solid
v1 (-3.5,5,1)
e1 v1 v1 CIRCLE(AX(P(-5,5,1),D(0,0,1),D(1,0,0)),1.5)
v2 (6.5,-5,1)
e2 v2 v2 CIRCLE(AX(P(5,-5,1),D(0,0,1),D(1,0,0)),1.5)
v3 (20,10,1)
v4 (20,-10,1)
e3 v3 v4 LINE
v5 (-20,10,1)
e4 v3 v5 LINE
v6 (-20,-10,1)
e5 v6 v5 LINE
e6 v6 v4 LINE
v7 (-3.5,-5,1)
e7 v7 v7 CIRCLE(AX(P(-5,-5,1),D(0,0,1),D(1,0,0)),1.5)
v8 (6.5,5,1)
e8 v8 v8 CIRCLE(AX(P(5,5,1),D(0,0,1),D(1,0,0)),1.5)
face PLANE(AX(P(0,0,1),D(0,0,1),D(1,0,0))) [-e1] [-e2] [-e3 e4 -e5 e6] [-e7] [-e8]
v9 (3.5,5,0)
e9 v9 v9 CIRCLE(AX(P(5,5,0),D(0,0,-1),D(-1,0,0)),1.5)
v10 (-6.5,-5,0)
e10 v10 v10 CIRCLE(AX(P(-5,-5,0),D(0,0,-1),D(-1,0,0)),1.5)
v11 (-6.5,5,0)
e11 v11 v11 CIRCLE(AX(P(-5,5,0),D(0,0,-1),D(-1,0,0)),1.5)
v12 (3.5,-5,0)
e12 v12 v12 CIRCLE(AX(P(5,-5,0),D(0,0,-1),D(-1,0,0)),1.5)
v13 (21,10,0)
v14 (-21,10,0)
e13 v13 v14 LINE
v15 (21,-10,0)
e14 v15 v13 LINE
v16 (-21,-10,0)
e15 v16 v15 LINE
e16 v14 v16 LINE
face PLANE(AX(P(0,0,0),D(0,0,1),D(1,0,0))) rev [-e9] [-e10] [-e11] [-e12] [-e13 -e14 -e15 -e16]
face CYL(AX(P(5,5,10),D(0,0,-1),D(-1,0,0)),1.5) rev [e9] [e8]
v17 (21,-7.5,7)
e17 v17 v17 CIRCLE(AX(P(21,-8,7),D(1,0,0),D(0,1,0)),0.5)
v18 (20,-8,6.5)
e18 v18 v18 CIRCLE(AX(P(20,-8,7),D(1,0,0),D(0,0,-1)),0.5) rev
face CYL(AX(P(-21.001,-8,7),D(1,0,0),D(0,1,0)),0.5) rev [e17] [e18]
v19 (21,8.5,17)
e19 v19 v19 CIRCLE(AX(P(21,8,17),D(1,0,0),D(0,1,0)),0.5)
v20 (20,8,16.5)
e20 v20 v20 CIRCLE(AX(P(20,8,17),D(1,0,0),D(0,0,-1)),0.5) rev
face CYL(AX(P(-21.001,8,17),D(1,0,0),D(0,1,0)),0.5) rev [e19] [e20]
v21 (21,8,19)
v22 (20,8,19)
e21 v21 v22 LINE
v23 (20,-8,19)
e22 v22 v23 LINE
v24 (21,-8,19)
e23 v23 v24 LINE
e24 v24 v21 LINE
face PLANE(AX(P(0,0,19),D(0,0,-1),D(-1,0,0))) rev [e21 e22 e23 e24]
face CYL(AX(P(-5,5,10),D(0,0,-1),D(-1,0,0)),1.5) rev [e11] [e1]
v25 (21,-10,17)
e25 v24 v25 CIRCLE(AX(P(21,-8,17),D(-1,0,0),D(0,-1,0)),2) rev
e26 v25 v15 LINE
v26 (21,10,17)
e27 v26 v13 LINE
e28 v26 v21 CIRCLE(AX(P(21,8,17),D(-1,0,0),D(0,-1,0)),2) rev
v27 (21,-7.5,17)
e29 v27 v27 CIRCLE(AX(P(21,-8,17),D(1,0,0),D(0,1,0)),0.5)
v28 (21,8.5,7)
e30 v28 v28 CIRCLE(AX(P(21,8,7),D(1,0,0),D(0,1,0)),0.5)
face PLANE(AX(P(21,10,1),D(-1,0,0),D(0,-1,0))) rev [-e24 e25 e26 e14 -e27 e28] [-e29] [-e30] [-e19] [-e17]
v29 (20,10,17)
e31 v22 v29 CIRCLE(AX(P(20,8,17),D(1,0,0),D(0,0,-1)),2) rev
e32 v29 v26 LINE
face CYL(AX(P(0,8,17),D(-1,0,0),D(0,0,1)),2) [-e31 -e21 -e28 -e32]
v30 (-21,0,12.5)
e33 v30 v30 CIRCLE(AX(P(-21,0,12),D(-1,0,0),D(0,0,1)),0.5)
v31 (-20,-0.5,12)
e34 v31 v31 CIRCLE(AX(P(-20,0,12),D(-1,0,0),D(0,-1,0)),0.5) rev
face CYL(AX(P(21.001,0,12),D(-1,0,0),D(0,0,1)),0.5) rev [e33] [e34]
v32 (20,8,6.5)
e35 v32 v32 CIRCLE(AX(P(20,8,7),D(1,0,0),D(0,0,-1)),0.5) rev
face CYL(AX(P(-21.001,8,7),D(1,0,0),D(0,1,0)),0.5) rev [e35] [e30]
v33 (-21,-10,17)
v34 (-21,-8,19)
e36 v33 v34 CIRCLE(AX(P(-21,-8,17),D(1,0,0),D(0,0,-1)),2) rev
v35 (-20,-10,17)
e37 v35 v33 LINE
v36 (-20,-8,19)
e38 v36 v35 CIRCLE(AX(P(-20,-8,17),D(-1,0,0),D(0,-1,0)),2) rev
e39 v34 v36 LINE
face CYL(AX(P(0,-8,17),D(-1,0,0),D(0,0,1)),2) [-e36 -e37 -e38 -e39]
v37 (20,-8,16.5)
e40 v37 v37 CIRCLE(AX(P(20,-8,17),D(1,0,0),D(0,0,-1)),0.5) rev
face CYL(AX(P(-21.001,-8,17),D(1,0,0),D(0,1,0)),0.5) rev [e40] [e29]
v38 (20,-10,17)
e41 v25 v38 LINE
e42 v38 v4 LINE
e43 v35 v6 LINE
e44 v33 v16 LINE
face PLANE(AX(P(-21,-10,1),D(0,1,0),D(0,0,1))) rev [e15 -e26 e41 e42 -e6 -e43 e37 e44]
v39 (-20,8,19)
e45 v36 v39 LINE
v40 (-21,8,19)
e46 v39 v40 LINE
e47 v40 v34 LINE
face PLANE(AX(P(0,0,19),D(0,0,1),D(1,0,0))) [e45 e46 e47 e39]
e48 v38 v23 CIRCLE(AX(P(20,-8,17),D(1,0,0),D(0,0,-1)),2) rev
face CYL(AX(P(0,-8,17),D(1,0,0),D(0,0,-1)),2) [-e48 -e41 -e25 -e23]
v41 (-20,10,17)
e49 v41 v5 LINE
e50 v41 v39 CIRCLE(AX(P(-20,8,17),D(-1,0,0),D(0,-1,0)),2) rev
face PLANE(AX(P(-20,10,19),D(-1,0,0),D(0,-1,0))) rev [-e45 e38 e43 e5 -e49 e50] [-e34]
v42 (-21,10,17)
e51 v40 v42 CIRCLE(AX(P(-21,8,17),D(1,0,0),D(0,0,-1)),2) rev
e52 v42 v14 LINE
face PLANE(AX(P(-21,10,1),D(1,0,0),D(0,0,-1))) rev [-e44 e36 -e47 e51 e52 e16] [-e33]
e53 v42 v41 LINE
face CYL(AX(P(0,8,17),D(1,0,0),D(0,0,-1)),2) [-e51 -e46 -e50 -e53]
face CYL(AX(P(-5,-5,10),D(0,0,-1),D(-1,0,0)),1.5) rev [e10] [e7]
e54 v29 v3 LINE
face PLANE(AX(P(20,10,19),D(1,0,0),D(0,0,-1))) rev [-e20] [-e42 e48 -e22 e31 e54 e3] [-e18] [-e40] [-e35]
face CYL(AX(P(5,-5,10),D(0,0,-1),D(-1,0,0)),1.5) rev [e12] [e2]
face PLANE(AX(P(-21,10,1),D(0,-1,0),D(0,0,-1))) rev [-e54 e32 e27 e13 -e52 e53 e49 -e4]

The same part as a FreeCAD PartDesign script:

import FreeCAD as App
import Part
import Sketcher

V = App.Vector
Q = App.Units.Quantity


def edges_at(feature, points):
    """Names of the edges that pass closest to the given points."""
    edges = feature.Shape.Edges
    near = lambda p: min(range(len(edges)), key=lambda i: edges[i].distToShape(Part.Vertex(*p))[0])
    return sorted({f"Edge{near(p) + 1}" for p in points})

doc = App.newDocument("Part")
body = doc.addObject("PartDesign::Body", "Body")

sketch1 = doc.addObject("Sketcher::SketchObject", "Sketch")
body.addObject(sketch1)
sketch1.AttachmentSupport = (doc.XY_Plane, [""])
sketch1.MapMode = "FlatFace"
sketch1.addGeometry(Part.LineSegment(V(-21, 10, 0), V(-21, -10, 0)), False)
sketch1.addGeometry(Part.LineSegment(V(-21, -10, 0), V(21, -10, 0)), False)
sketch1.addGeometry(Part.LineSegment(V(21, -10, 0), V(21, 10, 0)), False)
sketch1.addGeometry(Part.LineSegment(V(21, 10, 0), V(-21, 10, 0)), False)
sketch1.addConstraint(Sketcher.Constraint("Coincident", 0, 2, 1, 1))
sketch1.addConstraint(Sketcher.Constraint("Coincident", 1, 2, 2, 1))
sketch1.addConstraint(Sketcher.Constraint("Coincident", 2, 2, 3, 1))
sketch1.addConstraint(Sketcher.Constraint("Coincident", 3, 2, 0, 1))
sketch1.addConstraint(Sketcher.Constraint("Vertical", 0))
sketch1.addConstraint(Sketcher.Constraint("Horizontal", 1))
sketch1.addConstraint(Sketcher.Constraint("Vertical", 2))
sketch1.addConstraint(Sketcher.Constraint("Horizontal", 3))
sketch1.addConstraint(Sketcher.Constraint("Symmetric", 0, 2, 2, 2, -1, 1))
sketch1.addConstraint(Sketcher.Constraint("DistanceX", 1, 1, 1, 2, Q("42 mm")))
sketch1.addConstraint(Sketcher.Constraint("DistanceY", 0, 2, 0, 1, Q("20 mm")))
pad1 = doc.addObject("PartDesign::Pad", "Pad")
body.addObject(pad1)
pad1.Profile = sketch1
pad1.Length = 1

sketch2 = doc.addObject("Sketcher::SketchObject", "Sketch001")
body.addObject(sketch2)
sketch2.AttachmentSupport = (doc.XY_Plane, [""])
sketch2.MapMode = "FlatFace"
sketch2.AttachmentOffset = App.Placement(V(0, 0, 1), App.Rotation())
sketch2.addGeometry(Part.LineSegment(V(-21, 10, 0), V(-21, -10, 0)), False)
sketch2.addGeometry(Part.LineSegment(V(-21, -10, 0), V(-20, -10, 0)), False)
sketch2.addGeometry(Part.LineSegment(V(-20, -10, 0), V(-20, 10, 0)), False)
sketch2.addGeometry(Part.LineSegment(V(-20, 10, 0), V(-21, 10, 0)), False)
sketch2.addGeometry(Part.LineSegment(V(20, 10, 0), V(20, -10, 0)), False)
sketch2.addGeometry(Part.LineSegment(V(20, -10, 0), V(21, -10, 0)), False)
sketch2.addGeometry(Part.LineSegment(V(21, -10, 0), V(21, 10, 0)), False)
sketch2.addGeometry(Part.LineSegment(V(21, 10, 0), V(20, 10, 0)), False)
sketch2.addConstraint(Sketcher.Constraint("Coincident", 0, 2, 1, 1))
sketch2.addConstraint(Sketcher.Constraint("Coincident", 1, 2, 2, 1))
sketch2.addConstraint(Sketcher.Constraint("Coincident", 2, 2, 3, 1))
sketch2.addConstraint(Sketcher.Constraint("Coincident", 3, 2, 0, 1))
sketch2.addConstraint(Sketcher.Constraint("Coincident", 4, 2, 5, 1))
sketch2.addConstraint(Sketcher.Constraint("Coincident", 5, 2, 6, 1))
sketch2.addConstraint(Sketcher.Constraint("Coincident", 6, 2, 7, 1))
sketch2.addConstraint(Sketcher.Constraint("Coincident", 7, 2, 4, 1))
sketch2.addConstraint(Sketcher.Constraint("Vertical", 0))
sketch2.addConstraint(Sketcher.Constraint("Horizontal", 1))
sketch2.addConstraint(Sketcher.Constraint("Vertical", 2))
sketch2.addConstraint(Sketcher.Constraint("Horizontal", 3))
sketch2.addConstraint(Sketcher.Constraint("Vertical", 4))
sketch2.addConstraint(Sketcher.Constraint("Horizontal", 5))
sketch2.addConstraint(Sketcher.Constraint("Vertical", 6))
sketch2.addConstraint(Sketcher.Constraint("Horizontal", 7))
sketch2.addConstraint(Sketcher.Constraint("Symmetric", 2, 2, 4, 2, -1, 1))
sketch2.addConstraint(Sketcher.Constraint("Symmetric", 0, 2, 6, 2, -1, 1))
sketch2.addConstraint(Sketcher.Constraint("Horizontal", 1, 2, 4, 2))
sketch2.addConstraint(Sketcher.Constraint("DistanceX", 1, 1, 1, 2, Q("1 mm")))
sketch2.addConstraint(Sketcher.Constraint("DistanceY", 0, 2, 0, 1, Q("20 mm")))
sketch2.addConstraint(Sketcher.Constraint("DistanceX", 0, 2, -1, 1, Q("21 mm")))
pad2 = doc.addObject("PartDesign::Pad", "Pad001")
body.addObject(pad2)
pad2.Profile = sketch2
pad2.Length = 18

sketch3 = doc.addObject("Sketcher::SketchObject", "Sketch002")
body.addObject(sketch3)
sketch3.AttachmentSupport = (doc.YZ_Plane, [""])
sketch3.MapMode = "FlatFace"
sketch3.AttachmentOffset = App.Placement(V(0, 0, 21), App.Rotation())
sketch3.addGeometry(Part.Circle(V(8, 17, 0), V(0, 0, 1), 0.5), False)
sketch3.addConstraint(Sketcher.Constraint("Diameter", 0, Q("1 mm")))
sketch3.addConstraint(Sketcher.Constraint("DistanceX", -1, 1, 0, 3, Q("8 mm")))
sketch3.addConstraint(Sketcher.Constraint("DistanceY", -1, 1, 0, 3, Q("17 mm")))
pocket1 = doc.addObject("PartDesign::Pocket", "Pocket")
body.addObject(pocket1)
pocket1.Profile = sketch3
pocket1.Type = "UpToFirst"

sketch4 = doc.addObject("Sketcher::SketchObject", "Sketch003")
body.addObject(sketch4)
sketch4.AttachmentSupport = (doc.YZ_Plane, [""])
sketch4.MapMode = "FlatFace"
sketch4.AttachmentOffset = App.Placement(V(0, 0, 21), App.Rotation())
sketch4.addGeometry(Part.Circle(V(8, 7, 0), V(0, 0, 1), 0.5), False)
sketch4.addConstraint(Sketcher.Constraint("Diameter", 0, Q("1 mm")))
sketch4.addConstraint(Sketcher.Constraint("DistanceX", -1, 1, 0, 3, Q("8 mm")))
sketch4.addConstraint(Sketcher.Constraint("DistanceY", -1, 1, 0, 3, Q("7 mm")))
pocket2 = doc.addObject("PartDesign::Pocket", "Pocket001")
body.addObject(pocket2)
pocket2.Profile = sketch4
pocket2.Type = "UpToFirst"

sketch5 = doc.addObject("Sketcher::SketchObject", "Sketch004")
body.addObject(sketch5)
sketch5.AttachmentSupport = (doc.YZ_Plane, [""])
sketch5.MapMode = "FlatFace"
sketch5.AttachmentOffset = App.Placement(V(0, 0, 21), App.Rotation())
sketch5.addGeometry(Part.Circle(V(-8, 7, 0), V(0, 0, 1), 0.5), False)
sketch5.addConstraint(Sketcher.Constraint("Diameter", 0, Q("1 mm")))
sketch5.addConstraint(Sketcher.Constraint("DistanceX", 0, 3, -1, 1, Q("8 mm")))
sketch5.addConstraint(Sketcher.Constraint("DistanceY", -1, 1, 0, 3, Q("7 mm")))
pocket3 = doc.addObject("PartDesign::Pocket", "Pocket002")
body.addObject(pocket3)
pocket3.Profile = sketch5
pocket3.Type = "UpToFirst"

sketch6 = doc.addObject("Sketcher::SketchObject", "Sketch005")
body.addObject(sketch6)
sketch6.AttachmentSupport = (doc.YZ_Plane, [""])
sketch6.MapMode = "FlatFace"
sketch6.AttachmentOffset = App.Placement(V(0, 0, 21), App.Rotation())
sketch6.addGeometry(Part.Circle(V(-8, 17, 0), V(0, 0, 1), 0.5), False)
sketch6.addConstraint(Sketcher.Constraint("Diameter", 0, Q("1 mm")))
sketch6.addConstraint(Sketcher.Constraint("DistanceX", 0, 3, -1, 1, Q("8 mm")))
sketch6.addConstraint(Sketcher.Constraint("DistanceY", -1, 1, 0, 3, Q("17 mm")))
pocket4 = doc.addObject("PartDesign::Pocket", "Pocket003")
body.addObject(pocket4)
pocket4.Profile = sketch6
pocket4.Type = "UpToFirst"
doc.recompute()

fillet = doc.addObject("PartDesign::Fillet", "Fillet")
body.addObject(fillet)
fillet.Base = (pocket4, edges_at(pocket4, [(20.5, 10, 19), (20.5, -10, 19)]))
fillet.Radius = 2
doc.recompute()

fillet2 = doc.addObject("PartDesign::Fillet", "Fillet001")
body.addObject(fillet2)
fillet2.Base = (fillet, edges_at(fillet, [(-20.5, 10, 19)]))
fillet2.Radius = 2
doc.recompute()

fillet3 = doc.addObject("PartDesign::Fillet", "Fillet002")
body.addObject(fillet3)
fillet3.Base = (fillet2, edges_at(fillet2, [(-20.5, -10, 19)]))
fillet3.Radius = 2

sketch7 = doc.addObject("Sketcher::SketchObject", "Sketch006")
body.addObject(sketch7)
sketch7.AttachmentSupport = (doc.YZ_Plane, [""])
sketch7.MapMode = "FlatFace"
sketch7.AttachmentOffset = App.Placement(V(0, 0, -21), App.Rotation())
sketch7.addGeometry(Part.Circle(V(0, 12, 0), V(0, 0, 1), 0.5), False)
sketch7.addConstraint(Sketcher.Constraint("PointOnObject", 0, 3, -2))
sketch7.addConstraint(Sketcher.Constraint("Diameter", 0, Q("1 mm")))
sketch7.addConstraint(Sketcher.Constraint("DistanceY", -1, 1, 0, 3, Q("12 mm")))
pocket5 = doc.addObject("PartDesign::Pocket", "Pocket004")
body.addObject(pocket5)
pocket5.Profile = sketch7
pocket5.Type = "UpToFirst"
pocket5.Reversed = True

sketch8 = doc.addObject("Sketcher::SketchObject", "Sketch007")
body.addObject(sketch8)
sketch8.AttachmentSupport = (doc.XY_Plane, [""])
sketch8.MapMode = "FlatFace"
sketch8.addGeometry(Part.Circle(V(-5, -5, 0), V(0, 0, 1), 1.5), False)
sketch8.addGeometry(Part.Circle(V(5, -5, 0), V(0, 0, 1), 1.5), False)
sketch8.addGeometry(Part.Circle(V(5, 5, 0), V(0, 0, 1), 1.5), False)
sketch8.addGeometry(Part.Circle(V(-5, 5, 0), V(0, 0, 1), 1.5), False)
sketch8.addConstraint(Sketcher.Constraint("Equal", 0, 1))
sketch8.addConstraint(Sketcher.Constraint("Equal", 1, 2))
sketch8.addConstraint(Sketcher.Constraint("Equal", 2, 3))
sketch8.addConstraint(Sketcher.Constraint("Symmetric", 0, 3, 2, 3, -1, 1))
sketch8.addConstraint(Sketcher.Constraint("Symmetric", 1, 3, 3, 3, -1, 1))
sketch8.addConstraint(Sketcher.Constraint("Symmetric", 0, 3, 1, 3, -2))
sketch8.addConstraint(Sketcher.Constraint("Diameter", 0, Q("3 mm")))
sketch8.addConstraint(Sketcher.Constraint("DistanceX", 0, 3, -1, 1, Q("5 mm")))
sketch8.addConstraint(Sketcher.Constraint("DistanceY", 0, 3, -1, 1, Q("5 mm")))
pocket6 = doc.addObject("PartDesign::Pocket", "Pocket005")
body.addObject(pocket6)
pocket6.Profile = sketch8
pocket6.Length = 10
pocket6.Reversed = True

doc.recompute()
